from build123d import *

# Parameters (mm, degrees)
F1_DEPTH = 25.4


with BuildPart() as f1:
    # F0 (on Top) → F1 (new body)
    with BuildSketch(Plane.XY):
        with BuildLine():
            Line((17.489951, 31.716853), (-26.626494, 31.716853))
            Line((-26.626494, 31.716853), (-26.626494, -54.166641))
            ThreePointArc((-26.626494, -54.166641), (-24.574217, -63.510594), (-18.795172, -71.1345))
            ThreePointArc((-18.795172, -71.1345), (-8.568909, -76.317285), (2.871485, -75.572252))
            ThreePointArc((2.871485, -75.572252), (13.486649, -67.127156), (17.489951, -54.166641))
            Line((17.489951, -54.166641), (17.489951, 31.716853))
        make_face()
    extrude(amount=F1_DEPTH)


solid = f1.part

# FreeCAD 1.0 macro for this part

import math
import FreeCAD as App
import Part
import Sketcher
from FreeCAD import Vector
Q = App.Units.Quantity

doc = App.newDocument("Part")
body = doc.addObject("PartDesign::Body", "Body")

# Sketch on XY plane
sketch1 = doc.addObject("Sketcher::SketchObject", "Sketch")
body.addObject(sketch1)
sketch1.AttachmentSupport = (doc.XY_Plane, [""])
sketch1.MapMode = "FlatFace"
sketch1.addGeometry(Part.LineSegment(Vector(17.489951, 31.716853, 0), Vector(-26.626494, 31.716853, 0)), False)
sketch1.addGeometry(Part.LineSegment(Vector(-26.626494, 31.716853, 0), Vector(-26.626494, -54.166641, 0)), False)
sketch1.addGeometry(Part.ArcOfCircle(Part.Circle(Vector(-4.328991, -54.166641, 0), Vector(0, 0, 1), 22.297503), math.radians(-179.999999), math.radians(-130.449706)), False)
sketch1.addGeometry(Part.ArcOfCircle(Part.Circle(Vector(-4.21029, -55.036981, 0), Vector(0, 0, 1), 21.722083), math.radians(-132.177613), math.radians(-70.97278)), False)
sketch1.addGeometry(Part.ArcOfCircle(Part.Circle(Vector(-5.491245, -54.166643, 0), Vector(0, 0, 1), 22.981196), math.radians(-68.660438), math.radians(0.000004)), False)
sketch1.addGeometry(Part.LineSegment(Vector(17.489951, -54.166641, 0), Vector(17.489951, 31.716853, 0)), False)
sketch1.addConstraint(Sketcher.Constraint("Coincident", 0, 2, 1, 1))
sketch1.addConstraint(Sketcher.Constraint("Tangent", 1, 2, 2, 1))
sketch1.addConstraint(Sketcher.Constraint("Coincident", 2, 2, 3, 1))
sketch1.addConstraint(Sketcher.Constraint("Coincident", 3, 2, 4, 1))
sketch1.addConstraint(Sketcher.Constraint("Tangent", 4, 2, 5, 1))
sketch1.addConstraint(Sketcher.Constraint("Coincident", 5, 2, 0, 1))
sketch1.addConstraint(Sketcher.Constraint("Horizontal", 0))
sketch1.addConstraint(Sketcher.Constraint("Vertical", 1))
sketch1.addConstraint(Sketcher.Constraint("Vertical", 5))
sketch1.addConstraint(Sketcher.Constraint("Horizontal", 4, 3, 1, 2))
sketch1.addConstraint(Sketcher.Constraint("Radius", 3, Q("0.8552001 in")))
sketch1.addConstraint(Sketcher.Constraint("Radius", 2, 22.297503))
sketch1.addConstraint(Sketcher.Constraint("Radius", 4, 22.981196))
sketch1.addConstraint(Sketcher.Constraint("DistanceY", 2, 2, -1, 1, 71.1345))
sketch1.addConstraint(Sketcher.Constraint("DistanceX", 2, 3, 3, 3, 0.1187))
sketch1.addConstraint(Sketcher.Constraint("DistanceX", 0, 2, 0, 1, 44.116445))
sketch1.addConstraint(Sketcher.Constraint("DistanceY", 1, 2, 1, 1, 85.883494))
sketch1.addConstraint(Sketcher.Constraint("DistanceX", 2, 3, -1, 1, 4.328991))
sketch1.addConstraint(Sketcher.Constraint("DistanceY", 2, 3, -1, 1, 54.166641))
pad1 = doc.addObject("PartDesign::Pad", "Pad")
body.addObject(pad1)
pad1.Profile = sketch1
pad1.Length = Q("1 in")

doc.recompute()
